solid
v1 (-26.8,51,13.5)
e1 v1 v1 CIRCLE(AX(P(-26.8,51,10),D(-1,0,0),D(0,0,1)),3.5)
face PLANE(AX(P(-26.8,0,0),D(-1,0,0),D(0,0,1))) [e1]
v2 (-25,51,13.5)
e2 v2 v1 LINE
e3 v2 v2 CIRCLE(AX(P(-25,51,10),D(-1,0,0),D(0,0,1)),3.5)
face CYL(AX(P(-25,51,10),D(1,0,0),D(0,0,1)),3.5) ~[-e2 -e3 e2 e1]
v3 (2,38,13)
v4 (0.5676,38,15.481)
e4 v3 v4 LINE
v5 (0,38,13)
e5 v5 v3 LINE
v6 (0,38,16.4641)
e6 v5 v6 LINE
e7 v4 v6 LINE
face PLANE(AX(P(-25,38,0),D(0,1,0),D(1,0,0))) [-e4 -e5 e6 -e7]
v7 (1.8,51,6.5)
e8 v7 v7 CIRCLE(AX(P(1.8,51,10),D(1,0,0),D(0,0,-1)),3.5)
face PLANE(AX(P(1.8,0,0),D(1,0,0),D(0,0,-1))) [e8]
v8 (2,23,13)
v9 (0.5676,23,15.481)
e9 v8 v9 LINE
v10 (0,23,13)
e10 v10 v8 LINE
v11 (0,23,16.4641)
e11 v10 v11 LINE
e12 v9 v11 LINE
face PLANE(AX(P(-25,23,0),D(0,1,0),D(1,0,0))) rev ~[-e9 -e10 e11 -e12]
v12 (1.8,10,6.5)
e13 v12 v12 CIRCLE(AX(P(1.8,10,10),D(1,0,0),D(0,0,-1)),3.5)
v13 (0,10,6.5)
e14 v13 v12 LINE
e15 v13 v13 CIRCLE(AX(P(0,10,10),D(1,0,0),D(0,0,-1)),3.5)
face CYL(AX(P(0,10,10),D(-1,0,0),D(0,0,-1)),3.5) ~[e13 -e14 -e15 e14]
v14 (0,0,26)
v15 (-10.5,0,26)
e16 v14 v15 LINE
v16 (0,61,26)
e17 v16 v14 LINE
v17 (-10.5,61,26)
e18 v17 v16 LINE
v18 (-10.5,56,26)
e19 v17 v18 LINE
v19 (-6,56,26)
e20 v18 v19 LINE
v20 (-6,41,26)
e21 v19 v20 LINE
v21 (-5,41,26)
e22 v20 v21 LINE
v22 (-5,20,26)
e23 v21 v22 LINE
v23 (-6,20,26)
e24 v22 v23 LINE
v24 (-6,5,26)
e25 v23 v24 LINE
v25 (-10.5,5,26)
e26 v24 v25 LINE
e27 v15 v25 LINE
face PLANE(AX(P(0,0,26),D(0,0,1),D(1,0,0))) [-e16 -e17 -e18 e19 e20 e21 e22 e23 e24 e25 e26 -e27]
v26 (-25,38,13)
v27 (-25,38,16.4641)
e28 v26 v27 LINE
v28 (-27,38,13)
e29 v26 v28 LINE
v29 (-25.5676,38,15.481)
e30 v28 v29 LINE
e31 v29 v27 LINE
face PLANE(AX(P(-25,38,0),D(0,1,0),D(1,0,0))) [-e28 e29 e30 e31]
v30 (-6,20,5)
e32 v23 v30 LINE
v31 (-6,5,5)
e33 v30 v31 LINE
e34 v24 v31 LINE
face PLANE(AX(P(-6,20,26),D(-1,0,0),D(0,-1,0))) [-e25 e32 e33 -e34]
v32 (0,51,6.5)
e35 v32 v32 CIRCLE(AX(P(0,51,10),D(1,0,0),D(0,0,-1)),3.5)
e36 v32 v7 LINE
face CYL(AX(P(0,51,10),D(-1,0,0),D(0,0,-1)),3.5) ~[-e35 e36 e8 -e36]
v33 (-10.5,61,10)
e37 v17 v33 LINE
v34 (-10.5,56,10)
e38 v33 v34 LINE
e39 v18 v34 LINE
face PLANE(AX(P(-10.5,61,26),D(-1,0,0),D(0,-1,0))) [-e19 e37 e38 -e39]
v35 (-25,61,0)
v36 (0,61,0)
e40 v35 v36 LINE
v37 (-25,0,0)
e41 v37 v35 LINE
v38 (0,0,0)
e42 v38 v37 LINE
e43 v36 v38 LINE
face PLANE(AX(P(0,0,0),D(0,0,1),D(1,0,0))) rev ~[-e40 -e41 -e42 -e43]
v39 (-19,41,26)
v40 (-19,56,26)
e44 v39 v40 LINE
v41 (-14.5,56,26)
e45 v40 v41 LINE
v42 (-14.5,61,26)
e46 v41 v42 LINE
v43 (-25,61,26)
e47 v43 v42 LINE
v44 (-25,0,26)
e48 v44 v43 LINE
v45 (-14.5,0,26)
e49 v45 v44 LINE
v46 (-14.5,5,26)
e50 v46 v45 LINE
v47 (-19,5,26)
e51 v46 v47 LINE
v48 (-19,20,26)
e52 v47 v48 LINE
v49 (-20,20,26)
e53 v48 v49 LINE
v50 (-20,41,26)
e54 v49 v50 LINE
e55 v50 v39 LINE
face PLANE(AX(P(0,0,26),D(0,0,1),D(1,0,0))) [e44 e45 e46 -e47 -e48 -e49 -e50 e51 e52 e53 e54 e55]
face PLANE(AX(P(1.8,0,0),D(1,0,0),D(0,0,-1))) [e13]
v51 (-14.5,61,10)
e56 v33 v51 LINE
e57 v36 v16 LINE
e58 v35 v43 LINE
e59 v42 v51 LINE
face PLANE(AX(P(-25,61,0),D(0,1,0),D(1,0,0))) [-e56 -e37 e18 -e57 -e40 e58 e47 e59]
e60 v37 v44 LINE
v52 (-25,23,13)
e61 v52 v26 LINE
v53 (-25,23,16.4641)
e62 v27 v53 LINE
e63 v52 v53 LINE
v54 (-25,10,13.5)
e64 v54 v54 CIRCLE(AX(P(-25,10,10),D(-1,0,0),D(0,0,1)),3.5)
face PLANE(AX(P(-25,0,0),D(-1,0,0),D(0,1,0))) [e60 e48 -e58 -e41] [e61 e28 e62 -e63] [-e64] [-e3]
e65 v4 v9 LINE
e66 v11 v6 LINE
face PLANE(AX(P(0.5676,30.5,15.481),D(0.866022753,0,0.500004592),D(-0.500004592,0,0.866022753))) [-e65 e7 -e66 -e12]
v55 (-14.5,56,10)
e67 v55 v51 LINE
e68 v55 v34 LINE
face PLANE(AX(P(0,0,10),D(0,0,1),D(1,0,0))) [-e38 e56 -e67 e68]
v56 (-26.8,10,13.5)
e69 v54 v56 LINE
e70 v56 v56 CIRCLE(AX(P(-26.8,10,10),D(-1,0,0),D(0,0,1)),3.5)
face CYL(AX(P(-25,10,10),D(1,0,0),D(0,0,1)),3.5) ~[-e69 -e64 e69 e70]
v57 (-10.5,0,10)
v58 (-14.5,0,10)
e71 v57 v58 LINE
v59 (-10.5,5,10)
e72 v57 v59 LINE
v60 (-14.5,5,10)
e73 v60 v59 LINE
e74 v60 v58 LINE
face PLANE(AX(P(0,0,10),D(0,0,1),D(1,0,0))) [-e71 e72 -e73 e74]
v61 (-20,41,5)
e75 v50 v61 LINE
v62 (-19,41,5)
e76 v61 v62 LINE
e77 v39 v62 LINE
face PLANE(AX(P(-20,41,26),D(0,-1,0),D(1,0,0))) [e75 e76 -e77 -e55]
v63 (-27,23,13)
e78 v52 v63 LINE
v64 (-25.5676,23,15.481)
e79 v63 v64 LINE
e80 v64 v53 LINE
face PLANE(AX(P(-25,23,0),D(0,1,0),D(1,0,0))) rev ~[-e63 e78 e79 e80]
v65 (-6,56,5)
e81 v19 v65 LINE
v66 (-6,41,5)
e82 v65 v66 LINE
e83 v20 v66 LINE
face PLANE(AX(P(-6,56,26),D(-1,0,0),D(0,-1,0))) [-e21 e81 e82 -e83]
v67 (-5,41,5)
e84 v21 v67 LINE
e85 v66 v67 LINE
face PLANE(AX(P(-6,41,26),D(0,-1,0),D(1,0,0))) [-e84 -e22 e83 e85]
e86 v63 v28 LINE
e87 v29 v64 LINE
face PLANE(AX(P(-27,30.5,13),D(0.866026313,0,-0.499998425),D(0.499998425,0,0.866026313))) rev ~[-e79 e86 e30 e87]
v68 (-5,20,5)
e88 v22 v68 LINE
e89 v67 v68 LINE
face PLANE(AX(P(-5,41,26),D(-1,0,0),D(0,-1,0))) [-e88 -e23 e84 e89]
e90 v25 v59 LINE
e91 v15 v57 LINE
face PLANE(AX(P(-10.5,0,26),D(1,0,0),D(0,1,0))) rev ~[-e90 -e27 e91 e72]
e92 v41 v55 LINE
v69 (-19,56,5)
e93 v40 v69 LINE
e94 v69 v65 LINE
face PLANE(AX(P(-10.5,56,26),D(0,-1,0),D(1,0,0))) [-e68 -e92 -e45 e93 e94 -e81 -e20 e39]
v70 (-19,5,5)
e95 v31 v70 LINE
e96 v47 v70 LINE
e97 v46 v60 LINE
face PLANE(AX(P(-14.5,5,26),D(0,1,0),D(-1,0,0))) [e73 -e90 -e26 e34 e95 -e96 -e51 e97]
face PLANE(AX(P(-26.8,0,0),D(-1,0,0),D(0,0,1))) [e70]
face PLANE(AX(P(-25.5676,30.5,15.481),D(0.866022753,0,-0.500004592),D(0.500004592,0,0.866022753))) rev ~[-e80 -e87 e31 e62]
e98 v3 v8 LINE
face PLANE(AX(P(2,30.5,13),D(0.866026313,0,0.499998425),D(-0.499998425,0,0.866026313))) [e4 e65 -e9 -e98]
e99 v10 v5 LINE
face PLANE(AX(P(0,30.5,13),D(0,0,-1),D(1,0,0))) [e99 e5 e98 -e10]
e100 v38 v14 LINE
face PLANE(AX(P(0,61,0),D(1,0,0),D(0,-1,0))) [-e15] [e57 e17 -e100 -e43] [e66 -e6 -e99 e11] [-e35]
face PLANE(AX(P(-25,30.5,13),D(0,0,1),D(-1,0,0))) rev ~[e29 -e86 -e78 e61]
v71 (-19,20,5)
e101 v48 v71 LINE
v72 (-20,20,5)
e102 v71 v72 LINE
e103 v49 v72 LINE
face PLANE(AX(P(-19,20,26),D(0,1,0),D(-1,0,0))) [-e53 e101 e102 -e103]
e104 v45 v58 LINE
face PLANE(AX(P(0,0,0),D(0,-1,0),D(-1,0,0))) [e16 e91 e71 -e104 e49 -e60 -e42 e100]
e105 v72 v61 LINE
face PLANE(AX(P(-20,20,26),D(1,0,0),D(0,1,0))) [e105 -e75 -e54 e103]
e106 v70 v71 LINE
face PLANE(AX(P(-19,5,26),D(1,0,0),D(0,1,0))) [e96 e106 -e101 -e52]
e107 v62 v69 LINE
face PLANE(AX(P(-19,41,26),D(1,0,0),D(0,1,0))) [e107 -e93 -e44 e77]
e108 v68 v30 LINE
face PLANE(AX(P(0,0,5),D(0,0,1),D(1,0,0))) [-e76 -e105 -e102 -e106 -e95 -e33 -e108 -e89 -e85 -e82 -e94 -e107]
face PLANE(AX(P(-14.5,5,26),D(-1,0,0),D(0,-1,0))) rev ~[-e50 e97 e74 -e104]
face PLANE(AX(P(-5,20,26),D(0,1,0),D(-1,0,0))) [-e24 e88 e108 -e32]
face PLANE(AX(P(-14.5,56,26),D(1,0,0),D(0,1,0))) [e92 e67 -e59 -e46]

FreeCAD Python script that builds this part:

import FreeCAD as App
import Part
import Sketcher
Q = App.Units.Quantity


def add_polygon(sketch, points):
    """Adds a closed chain of lines whose ends are joined by coincident constraints."""
    first, n = sketch.GeometryCount, len(points)
    for a, b in zip(points, points[1:] + points[:1]):
        sketch.addGeometry(Part.LineSegment(App.Vector(*a, 0), App.Vector(*b, 0)), False)
    for i in range(n):
        sketch.addConstraint(Sketcher.Constraint("Coincident", first + i, 2, first + (i + 1) % n, 1))

doc = App.newDocument("Part")
params = doc.addObject("Spreadsheet::Sheet", "Params")
for row, (alias, value) in enumerate([
    ("sketch1_width", "25 mm"),
    ("sketch1_height", "61 mm"),
    ("pad1_length", "26 mm"),
    ("sketch2_width", "13 mm"),
    ("sketch2_height", "21 mm"),
    ("sketch2_height2", "15 mm"),
    ("pocket1_length", "21 mm"),
    ("sketch3_width", "4 mm"),
    ("sketch3_height", "5 mm"),
    ("pocket2_length", "16 mm"),
    ("sketch4_width", "2 mm"),
    ("pad2_length", "15 mm"),
    ("sketch5_diameter", "7 mm"),
    ("pad3_length", "1.8 mm"),
    ("sketch6_diameter", "7 mm"),
    ("pad4_length", "1.8 mm"),
], start=1):
    params.set(f"A{row}", alias)
    params.set(f"B{row}", "=" + value)
    params.setAlias(f"B{row}", alias)

body = doc.addObject("PartDesign::Body", "Body")

# Sketch on XY plane
sketch1 = doc.addObject("Sketcher::SketchObject", "Sketch")
body.addObject(sketch1)
sketch1.AttachmentSupport = (doc.XY_Plane, [""])
sketch1.MapMode = "FlatFace"
add_polygon(sketch1, [(-25, 0), (0, 0), (0, 61), (-25, 61)])  # lines 0-3
sketch1.addConstraint([
    Sketcher.Constraint("Horizontal", 0),
    Sketcher.Constraint("Vertical", 1),
    Sketcher.Constraint("Horizontal", 2),
    Sketcher.Constraint("Vertical", 3),
    Sketcher.Constraint("Coincident", 0, 2, -1, 1),
    Sketcher.Constraint("DistanceX", 0, 1, 0, 2, Q("25 mm")),
    Sketcher.Constraint("DistanceY", 1, 1, 1, 2, Q("61 mm")),
])
sketch1.setExpression("Constraints[9]", "Params.sketch1_width")
sketch1.setExpression("Constraints[10]", "Params.sketch1_height")
pad1 = doc.addObject("PartDesign::Pad", "Pad")
body.addObject(pad1)
pad1.Profile = sketch1
pad1.setExpression("Length", "Params.pad1_length")

# Sketch on XY plane
sketch2 = doc.addObject("Sketcher::SketchObject", "Sketch001")
body.addObject(sketch2)
sketch2.AttachmentSupport = (doc.XY_Plane, [""])
sketch2.MapMode = "FlatFace"
sketch2.AttachmentOffset = App.Placement(App.Vector(0, 0, 26), App.Rotation())
add_polygon(sketch2, [(-6, 41), (-6, 56), (-19, 56), (-19, 41), (-20, 41), (-20, 20), (-19, 20), (-19, 5), (-6, 5), (-6, 20), (-5, 20), (-5, 41)])  # lines 0-11
sketch2.addConstraint([
    Sketcher.Constraint("Vertical", 0),
    Sketcher.Constraint("Horizontal", 1),
    Sketcher.Constraint("Vertical", 2),
    Sketcher.Constraint("Horizontal", 3),
    Sketcher.Constraint("Vertical", 4),
    Sketcher.Constraint("Horizontal", 5),
    Sketcher.Constraint("Vertical", 6),
    Sketcher.Constraint("Horizontal", 7),
    Sketcher.Constraint("Vertical", 8),
    Sketcher.Constraint("Horizontal", 9),
    Sketcher.Constraint("Vertical", 10),
    Sketcher.Constraint("Horizontal", 11),
    Sketcher.Constraint("Horizontal", 5, 2, 8, 2),
    Sketcher.Constraint("Horizontal", 3, 2, 10, 2),
    Sketcher.Constraint("Vertical", 2, 2, 5, 2),
    Sketcher.Constraint("Vertical", 0, 2, 7, 2),
    Sketcher.Constraint("Equal", 5, 9),
    Sketcher.Constraint("Equal", 2, 6),
    Sketcher.Constraint("DistanceX", 1, 2, 1, 1, Q("13 mm")),
    Sketcher.Constraint("DistanceY", 4, 2, 4, 1, Q("21 mm")),
    Sketcher.Constraint("DistanceX", 0, 2, -1, 1, Q("6 mm")),
    Sketcher.Constraint("DistanceY", -1, 1, 6, 2, Q("5 mm")),
    Sketcher.Constraint("DistanceX", 9, 2, -1, 1, Q("5 mm")),
    Sketcher.Constraint("DistanceY", 0, 1, 0, 2, Q("15 mm")),
])
sketch2.setExpression("Constraints[30]", "Params.sketch2_width")
sketch2.setExpression("Constraints[31]", "Params.sketch2_height")
sketch2.setExpression("Constraints[35]", "Params.sketch2_height2")
pocket1 = doc.addObject("PartDesign::Pocket", "Pocket")
body.addObject(pocket1)
pocket1.Profile = sketch2
pocket1.setExpression("Length", "Params.pocket1_length")

# Sketch on XY plane
sketch3 = doc.addObject("Sketcher::SketchObject", "Sketch002")
body.addObject(sketch3)
sketch3.AttachmentSupport = (doc.XY_Plane, [""])
sketch3.MapMode = "FlatFace"
sketch3.AttachmentOffset = App.Placement(App.Vector(0, 0, 26), App.Rotation())
add_polygon(sketch3, [(-10.5, 56), (-10.5, 61), (-14.5, 61), (-14.5, 56)])  # lines 0-3
add_polygon(sketch3, [(-10.5, 5), (-14.5, 5), (-14.5, 0), (-10.5, 0)])  # lines 4-7
sketch3.addConstraint([
    Sketcher.Constraint("Vertical", 0),
    Sketcher.Constraint("Horizontal", 1),
    Sketcher.Constraint("Vertical", 2),
    Sketcher.Constraint("Horizontal", 3),
    Sketcher.Constraint("Horizontal", 4),
    Sketcher.Constraint("Vertical", 5),
    Sketcher.Constraint("Horizontal", 6),
    Sketcher.Constraint("Vertical", 7),
    Sketcher.Constraint("PointOnObject", 5, 2, -1),
    Sketcher.Constraint("Vertical", 2, 2, 4, 2),
    Sketcher.Constraint("Vertical", 3, 2, 6, 2),
    Sketcher.Constraint("Equal", 2, 5),
    Sketcher.Constraint("DistanceX", 1, 2, 1, 1, Q("4 mm")),
    Sketcher.Constraint("DistanceX", 0, 2, -1, 1, Q("10.5 mm")),
    Sketcher.Constraint("DistanceY", 0, 1, 0, 2, Q("5 mm")),
    Sketcher.Constraint("DistanceY", -1, 1, 0, 2, Q("61 mm")),
])
sketch3.setExpression("Constraints[20]", "Params.sketch3_width")
sketch3.setExpression("Constraints[22]", "Params.sketch3_height")
pocket2 = doc.addObject("PartDesign::Pocket", "Pocket001")
body.addObject(pocket2)
pocket2.Profile = sketch3
pocket2.setExpression("Length", "Params.pocket2_length")

# Sketch on XZ plane
sketch4 = doc.addObject("Sketcher::SketchObject", "Sketch003")
body.addObject(sketch4)
sketch4.AttachmentSupport = (doc.XZ_Plane, [""])
sketch4.MapMode = "FlatFace"
sketch4.AttachmentOffset = App.Placement(App.Vector(0, 0, -30.5), App.Rotation())
add_polygon(sketch4, [(-25, 16.5), (-25, 13), (-27, 13), (-25.6, 15.5)])  # lines 0-3
add_polygon(sketch4, [(2, 13), (0, 13), (0, 16.5), (0.6, 15.5)])  # lines 4-7
sketch4.addConstraint([
    Sketcher.Constraint("Vertical", 0),
    Sketcher.Constraint("Horizontal", 1),
    Sketcher.Constraint("Horizontal", 4),
    Sketcher.Constraint("Vertical", 5),
    Sketcher.Constraint("PointOnObject", 4, 2, -2),
    Sketcher.Constraint("Parallel", 2, 3),
    Sketcher.Constraint("Parallel", 6, 7),
    Sketcher.Constraint("Horizontal", 1, 2, 4, 2),
    Sketcher.Constraint("Horizontal", 3, 2, 5, 2),
    Sketcher.Constraint("Horizontal", 2, 2, 6, 2),
    Sketcher.Constraint("Equal", 1, 4),
    Sketcher.Constraint("DistanceX", 1, 2, 1, 1, Q("2 mm")),
    Sketcher.Constraint("Angle", 2, Q("60 deg")),
    Sketcher.Constraint("DistanceY", -1, 1, 0, 2, Q("13 mm")),
    Sketcher.Constraint("DistanceX", 0, 2, -1, 1, Q("25 mm")),
    Sketcher.Constraint("DistanceY", -1, 1, 2, 2, Q("15.481 mm")),
])
sketch4.setExpression("Constraints[19]", "Params.sketch4_width")
pad2 = doc.addObject("PartDesign::Pad", "Pad001")
body.addObject(pad2)
pad2.Profile = sketch4
pad2.setExpression("Length", "Params.pad2_length")
pad2.Midplane = True

# Sketch on YZ plane
sketch5 = doc.addObject("Sketcher::SketchObject", "Sketch004")
body.addObject(sketch5)
sketch5.AttachmentSupport = (doc.YZ_Plane, [""])
sketch5.MapMode = "FlatFace"
sketch5.addGeometry([
    Part.Circle(App.Vector(10, 10, 0), App.Vector(0, 0, 1), 3.5),
    Part.Circle(App.Vector(51, 10, 0), App.Vector(0, 0, 1), 3.5),
], False)
sketch5.addConstraint([
    Sketcher.Constraint("Equal", 0, 1),
    Sketcher.Constraint("Horizontal", 0, 3, 1, 3),
    Sketcher.Constraint("Diameter", 0, Q("7 mm")),
    Sketcher.Constraint("DistanceX", -1, 1, 0, 3, Q("10 mm")),
    Sketcher.Constraint("DistanceY", -1, 1, 0, 3, Q("10 mm")),
    Sketcher.Constraint("DistanceX", -1, 1, 1, 3, Q("51 mm")),
])
sketch5.setExpression("Constraints[2]", "Params.sketch5_diameter")
pad3 = doc.addObject("PartDesign::Pad", "Pad002")
body.addObject(pad3)
pad3.Profile = sketch5
pad3.setExpression("Length", "Params.pad3_length")

# Sketch on YZ plane
sketch6 = doc.addObject("Sketcher::SketchObject", "Sketch005")
body.addObject(sketch6)
sketch6.AttachmentSupport = (doc.YZ_Plane, [""])
sketch6.MapMode = "FlatFace"
sketch6.AttachmentOffset = App.Placement(App.Vector(0, 0, -25), App.Rotation())
sketch6.addGeometry([
    Part.Circle(App.Vector(51, 10, 0), App.Vector(0, 0, 1), 3.5),
    Part.Circle(App.Vector(10, 10, 0), App.Vector(0, 0, 1), 3.5),
], False)
sketch6.addConstraint([
    Sketcher.Constraint("Equal", 0, 1),
    Sketcher.Constraint("Horizontal", 0, 3, 1, 3),
    Sketcher.Constraint("Diameter", 0, Q("7 mm")),
    Sketcher.Constraint("DistanceY", -1, 1, 0, 3, Q("10 mm")),
    Sketcher.Constraint("DistanceX", -1, 1, 1, 3, Q("10 mm")),
    Sketcher.Constraint("DistanceX", -1, 1, 0, 3, Q("51 mm")),
])
sketch6.setExpression("Constraints[2]", "Params.sketch6_diameter")
pad4 = doc.addObject("PartDesign::Pad", "Pad003")
body.addObject(pad4)
pad4.Profile = sketch6
pad4.setExpression("Length", "Params.pad4_length")
pad4.Reversed = True

doc.recompute()
